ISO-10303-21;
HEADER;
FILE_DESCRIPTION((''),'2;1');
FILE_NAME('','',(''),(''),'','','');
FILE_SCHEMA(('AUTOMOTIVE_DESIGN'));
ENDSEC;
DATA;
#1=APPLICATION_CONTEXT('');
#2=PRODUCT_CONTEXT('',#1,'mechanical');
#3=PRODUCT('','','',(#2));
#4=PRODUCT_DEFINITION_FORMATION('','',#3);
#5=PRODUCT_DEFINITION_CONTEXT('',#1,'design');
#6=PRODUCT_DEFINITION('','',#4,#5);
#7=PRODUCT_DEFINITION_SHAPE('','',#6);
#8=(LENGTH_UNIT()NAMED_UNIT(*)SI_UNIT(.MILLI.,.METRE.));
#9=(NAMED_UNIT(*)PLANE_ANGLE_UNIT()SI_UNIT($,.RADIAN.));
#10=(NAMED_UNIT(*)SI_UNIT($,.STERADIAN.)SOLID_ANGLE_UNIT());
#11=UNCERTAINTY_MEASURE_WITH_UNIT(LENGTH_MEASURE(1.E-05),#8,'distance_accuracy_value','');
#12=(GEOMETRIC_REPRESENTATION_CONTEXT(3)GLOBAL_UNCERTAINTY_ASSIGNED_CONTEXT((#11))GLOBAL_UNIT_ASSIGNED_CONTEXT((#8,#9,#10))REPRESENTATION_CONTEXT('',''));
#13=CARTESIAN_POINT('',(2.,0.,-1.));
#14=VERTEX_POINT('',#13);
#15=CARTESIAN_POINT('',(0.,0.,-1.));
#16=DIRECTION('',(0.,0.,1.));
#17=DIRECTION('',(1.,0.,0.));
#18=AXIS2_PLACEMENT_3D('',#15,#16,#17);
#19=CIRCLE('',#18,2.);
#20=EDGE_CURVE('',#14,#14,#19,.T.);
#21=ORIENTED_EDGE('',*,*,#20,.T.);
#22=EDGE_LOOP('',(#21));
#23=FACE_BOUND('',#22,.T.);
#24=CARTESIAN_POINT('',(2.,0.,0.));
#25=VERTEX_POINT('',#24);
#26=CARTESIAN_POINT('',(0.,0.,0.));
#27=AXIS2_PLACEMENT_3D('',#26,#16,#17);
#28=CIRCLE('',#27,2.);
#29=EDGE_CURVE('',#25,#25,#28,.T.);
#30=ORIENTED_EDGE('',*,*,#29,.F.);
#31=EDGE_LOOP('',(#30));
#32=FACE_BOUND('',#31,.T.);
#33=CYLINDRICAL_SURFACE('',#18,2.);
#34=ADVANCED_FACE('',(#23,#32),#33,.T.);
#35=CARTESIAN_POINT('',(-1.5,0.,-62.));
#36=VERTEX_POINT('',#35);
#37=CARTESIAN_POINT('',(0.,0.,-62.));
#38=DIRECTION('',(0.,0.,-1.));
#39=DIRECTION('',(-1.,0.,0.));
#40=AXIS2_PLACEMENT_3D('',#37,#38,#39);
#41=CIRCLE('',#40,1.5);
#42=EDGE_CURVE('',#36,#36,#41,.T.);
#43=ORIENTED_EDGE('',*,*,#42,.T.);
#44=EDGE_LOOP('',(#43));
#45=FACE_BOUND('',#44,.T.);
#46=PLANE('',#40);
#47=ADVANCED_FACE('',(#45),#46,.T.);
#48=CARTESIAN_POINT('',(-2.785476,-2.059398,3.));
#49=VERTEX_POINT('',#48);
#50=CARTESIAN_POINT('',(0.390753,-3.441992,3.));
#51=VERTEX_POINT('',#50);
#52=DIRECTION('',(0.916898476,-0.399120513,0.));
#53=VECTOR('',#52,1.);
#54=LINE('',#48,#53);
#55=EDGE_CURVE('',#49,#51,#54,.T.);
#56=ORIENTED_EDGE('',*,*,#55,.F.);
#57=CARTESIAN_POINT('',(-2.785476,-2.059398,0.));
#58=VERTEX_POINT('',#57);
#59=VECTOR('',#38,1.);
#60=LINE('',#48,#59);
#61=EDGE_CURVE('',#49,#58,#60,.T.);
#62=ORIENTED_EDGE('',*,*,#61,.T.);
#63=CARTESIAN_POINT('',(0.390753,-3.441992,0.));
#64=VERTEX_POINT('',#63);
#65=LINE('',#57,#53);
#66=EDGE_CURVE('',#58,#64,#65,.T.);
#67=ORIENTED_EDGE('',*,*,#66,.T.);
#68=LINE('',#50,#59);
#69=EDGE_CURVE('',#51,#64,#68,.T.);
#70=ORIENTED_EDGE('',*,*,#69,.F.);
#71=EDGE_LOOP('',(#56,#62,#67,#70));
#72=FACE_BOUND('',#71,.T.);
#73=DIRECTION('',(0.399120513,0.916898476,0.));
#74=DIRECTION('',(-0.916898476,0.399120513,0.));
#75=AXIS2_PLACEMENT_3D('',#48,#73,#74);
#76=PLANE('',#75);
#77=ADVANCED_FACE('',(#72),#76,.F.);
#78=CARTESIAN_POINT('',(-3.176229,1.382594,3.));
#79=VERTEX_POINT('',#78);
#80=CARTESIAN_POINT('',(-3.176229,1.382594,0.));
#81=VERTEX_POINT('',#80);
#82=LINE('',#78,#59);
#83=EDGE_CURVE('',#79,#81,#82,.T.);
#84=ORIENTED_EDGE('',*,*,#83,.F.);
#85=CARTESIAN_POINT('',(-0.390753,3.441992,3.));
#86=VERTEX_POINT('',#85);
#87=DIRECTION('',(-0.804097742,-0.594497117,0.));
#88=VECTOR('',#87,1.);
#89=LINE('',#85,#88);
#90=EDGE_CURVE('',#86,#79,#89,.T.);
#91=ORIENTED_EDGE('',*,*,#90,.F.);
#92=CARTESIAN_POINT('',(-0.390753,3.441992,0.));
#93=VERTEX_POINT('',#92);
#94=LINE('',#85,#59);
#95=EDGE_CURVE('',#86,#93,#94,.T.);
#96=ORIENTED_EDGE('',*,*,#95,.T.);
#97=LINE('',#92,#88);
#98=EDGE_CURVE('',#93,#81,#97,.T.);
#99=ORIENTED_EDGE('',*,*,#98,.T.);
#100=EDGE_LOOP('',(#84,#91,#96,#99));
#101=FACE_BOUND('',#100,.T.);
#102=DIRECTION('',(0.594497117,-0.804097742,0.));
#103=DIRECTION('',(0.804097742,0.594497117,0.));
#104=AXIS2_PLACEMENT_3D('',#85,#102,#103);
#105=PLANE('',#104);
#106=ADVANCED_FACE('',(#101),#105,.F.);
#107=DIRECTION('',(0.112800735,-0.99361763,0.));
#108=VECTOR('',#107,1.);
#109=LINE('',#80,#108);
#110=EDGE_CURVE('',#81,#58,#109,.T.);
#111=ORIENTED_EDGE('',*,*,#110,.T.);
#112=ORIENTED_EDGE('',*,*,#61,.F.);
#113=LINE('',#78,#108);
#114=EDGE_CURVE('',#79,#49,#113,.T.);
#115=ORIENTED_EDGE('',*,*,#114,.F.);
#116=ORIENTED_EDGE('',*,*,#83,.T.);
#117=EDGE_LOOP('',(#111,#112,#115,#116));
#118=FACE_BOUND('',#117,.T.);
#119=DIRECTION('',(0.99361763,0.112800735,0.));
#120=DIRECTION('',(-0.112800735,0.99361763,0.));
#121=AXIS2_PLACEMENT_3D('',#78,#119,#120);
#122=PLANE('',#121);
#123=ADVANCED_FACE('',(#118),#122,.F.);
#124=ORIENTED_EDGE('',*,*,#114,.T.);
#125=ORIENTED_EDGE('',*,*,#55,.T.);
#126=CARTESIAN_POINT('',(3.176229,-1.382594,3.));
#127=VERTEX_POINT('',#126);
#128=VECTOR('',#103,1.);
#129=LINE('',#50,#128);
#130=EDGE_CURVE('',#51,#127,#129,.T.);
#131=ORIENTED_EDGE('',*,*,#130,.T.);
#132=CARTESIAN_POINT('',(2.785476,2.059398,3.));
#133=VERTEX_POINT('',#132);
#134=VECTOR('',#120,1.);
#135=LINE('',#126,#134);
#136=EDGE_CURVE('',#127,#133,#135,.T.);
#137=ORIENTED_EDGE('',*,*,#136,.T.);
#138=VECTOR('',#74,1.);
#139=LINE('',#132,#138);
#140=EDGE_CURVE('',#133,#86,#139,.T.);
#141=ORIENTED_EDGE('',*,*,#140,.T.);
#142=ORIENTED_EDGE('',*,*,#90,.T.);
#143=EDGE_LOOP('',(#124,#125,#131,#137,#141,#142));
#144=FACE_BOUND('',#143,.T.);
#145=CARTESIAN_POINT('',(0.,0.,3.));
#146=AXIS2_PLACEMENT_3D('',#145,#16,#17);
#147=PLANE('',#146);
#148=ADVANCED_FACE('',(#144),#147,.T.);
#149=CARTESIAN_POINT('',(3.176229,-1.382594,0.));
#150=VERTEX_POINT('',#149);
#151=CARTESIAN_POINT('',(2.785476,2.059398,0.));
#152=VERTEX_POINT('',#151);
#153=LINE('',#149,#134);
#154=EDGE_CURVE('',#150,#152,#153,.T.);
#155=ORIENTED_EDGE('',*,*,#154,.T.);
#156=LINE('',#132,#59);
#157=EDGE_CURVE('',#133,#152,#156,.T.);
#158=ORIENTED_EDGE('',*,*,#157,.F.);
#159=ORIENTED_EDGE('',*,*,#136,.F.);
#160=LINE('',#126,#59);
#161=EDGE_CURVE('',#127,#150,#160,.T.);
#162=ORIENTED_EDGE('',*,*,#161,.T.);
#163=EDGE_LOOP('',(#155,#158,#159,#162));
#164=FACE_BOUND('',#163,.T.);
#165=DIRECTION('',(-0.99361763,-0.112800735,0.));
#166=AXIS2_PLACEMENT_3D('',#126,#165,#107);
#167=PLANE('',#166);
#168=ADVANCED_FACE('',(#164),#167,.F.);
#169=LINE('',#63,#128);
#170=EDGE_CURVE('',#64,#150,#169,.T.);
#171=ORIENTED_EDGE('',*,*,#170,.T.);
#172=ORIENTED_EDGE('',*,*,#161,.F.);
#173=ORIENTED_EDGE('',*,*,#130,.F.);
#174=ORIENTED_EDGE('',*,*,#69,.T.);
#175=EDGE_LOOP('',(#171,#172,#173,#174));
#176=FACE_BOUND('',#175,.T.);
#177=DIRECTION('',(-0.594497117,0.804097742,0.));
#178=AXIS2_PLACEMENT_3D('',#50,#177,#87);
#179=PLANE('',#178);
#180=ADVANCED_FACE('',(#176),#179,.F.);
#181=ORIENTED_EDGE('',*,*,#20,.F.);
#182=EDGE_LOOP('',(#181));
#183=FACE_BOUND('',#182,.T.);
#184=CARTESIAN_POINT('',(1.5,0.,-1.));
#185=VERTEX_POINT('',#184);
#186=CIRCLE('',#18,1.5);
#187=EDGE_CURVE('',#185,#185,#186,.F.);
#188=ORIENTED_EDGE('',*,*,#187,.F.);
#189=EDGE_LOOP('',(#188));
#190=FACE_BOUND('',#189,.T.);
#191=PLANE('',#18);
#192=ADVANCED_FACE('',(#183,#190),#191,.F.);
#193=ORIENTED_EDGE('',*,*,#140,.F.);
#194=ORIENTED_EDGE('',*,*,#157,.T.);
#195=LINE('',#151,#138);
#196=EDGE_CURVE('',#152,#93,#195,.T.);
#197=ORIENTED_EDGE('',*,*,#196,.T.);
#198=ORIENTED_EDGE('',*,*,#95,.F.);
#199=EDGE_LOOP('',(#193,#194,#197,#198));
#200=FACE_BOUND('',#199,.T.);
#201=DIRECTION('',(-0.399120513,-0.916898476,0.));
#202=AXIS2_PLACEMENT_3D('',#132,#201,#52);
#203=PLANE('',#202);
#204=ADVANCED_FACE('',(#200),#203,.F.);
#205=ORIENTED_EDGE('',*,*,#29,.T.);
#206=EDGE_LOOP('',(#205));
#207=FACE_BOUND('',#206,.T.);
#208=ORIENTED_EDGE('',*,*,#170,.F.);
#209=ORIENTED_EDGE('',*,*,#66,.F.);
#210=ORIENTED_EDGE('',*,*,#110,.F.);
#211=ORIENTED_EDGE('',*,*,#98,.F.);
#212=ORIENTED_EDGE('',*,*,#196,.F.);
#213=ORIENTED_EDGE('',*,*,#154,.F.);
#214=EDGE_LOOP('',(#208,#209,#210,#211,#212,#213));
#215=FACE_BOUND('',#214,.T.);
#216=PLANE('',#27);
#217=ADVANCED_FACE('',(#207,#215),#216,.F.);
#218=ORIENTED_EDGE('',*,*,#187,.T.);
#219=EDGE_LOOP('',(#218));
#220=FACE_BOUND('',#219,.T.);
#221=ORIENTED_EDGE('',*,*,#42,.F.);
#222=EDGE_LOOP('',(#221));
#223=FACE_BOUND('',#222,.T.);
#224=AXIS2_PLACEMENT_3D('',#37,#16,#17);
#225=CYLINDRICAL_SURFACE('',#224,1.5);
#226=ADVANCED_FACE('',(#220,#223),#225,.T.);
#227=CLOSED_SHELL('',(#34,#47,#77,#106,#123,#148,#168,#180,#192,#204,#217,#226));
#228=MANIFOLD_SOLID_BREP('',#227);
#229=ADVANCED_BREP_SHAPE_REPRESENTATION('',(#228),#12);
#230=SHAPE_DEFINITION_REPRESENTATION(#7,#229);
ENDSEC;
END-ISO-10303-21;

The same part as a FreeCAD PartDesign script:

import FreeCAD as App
import Part
import Sketcher


def add_polygon(sketch, points):
    """Adds a closed chain of lines whose ends are joined by coincident constraints."""
    first, n = sketch.GeometryCount, len(points)
    for a, b in zip(points, points[1:] + points[:1]):
        sketch.addGeometry(Part.LineSegment(App.Vector(*a, 0), App.Vector(*b, 0)), False)
    for i in range(n):
        sketch.addConstraint(Sketcher.Constraint("Coincident", first + i, 2, first + (i + 1) % n, 1))

doc = App.newDocument("Part")
body = doc.addObject("PartDesign::Body", "Body")

# Sketch on XY plane
sketch1 = body.newObject("Sketcher::SketchObject", "Sketch")
sketch1.AttachmentSupport = (doc.getObject("XY_Plane"), [""])
sketch1.MapMode = "FlatFace"
add_polygon(sketch1, [(-3.2, 1.4), (-2.8, -2.1), (0.4, -3.4), (3.2, -1.4), (2.8, 2.1), (-0.4, 3.4)])  # lines 0-5
sketch1.addConstraint(Sketcher.Constraint("Symmetric", 0, 2, 3, 2, -1, 1))
sketch1.addConstraint(Sketcher.Constraint("Symmetric", 1, 2, 4, 2, -1, 1))
sketch1.addConstraint(Sketcher.Constraint("Symmetric", 2, 2, 5, 2, -1, 1))
sketch1.addConstraint(Sketcher.Constraint("Equal", 0, 1))
sketch1.addConstraint(Sketcher.Constraint("Equal", 1, 2))
sketch1.addConstraint(Sketcher.Constraint("Distance", 0, 3.464102))
sketch1.addConstraint(Sketcher.Constraint("DistanceY", 0, 2, -1, 1, 2.059398))
sketch1.addConstraint(Sketcher.Constraint("DistanceY", 1, 2, 2, 2, 2.059398))
sketch1.addConstraint(Sketcher.Constraint("DistanceX", -1, 1, 2, 2, 3.176229))
pad1 = body.newObject("PartDesign::Pad", "Pad")
pad1.Profile = sketch1
pad1.Length = 3

# Sketch on XY plane
sketch2 = body.newObject("Sketcher::SketchObject", "Sketch001")
sketch2.AttachmentSupport = (doc.getObject("XY_Plane"), [""])
sketch2.MapMode = "FlatFace"
sketch2.addGeometry(Part.Circle(App.Vector(0, 0, 0), App.Vector(0, 0, 1), 2), False)
sketch2.addConstraint(Sketcher.Constraint("Coincident", 0, 3, -1, 1))
sketch2.addConstraint(Sketcher.Constraint("Diameter", 0, 4.0))
pad2 = body.newObject("PartDesign::Pad", "Pad001")
pad2.Profile = sketch2
pad2.Length = 1
pad2.Reversed = True

# Sketch on XY plane
sketch3 = body.newObject("Sketcher::SketchObject", "Sketch002")
sketch3.AttachmentSupport = (doc.getObject("XY_Plane"), [""])
sketch3.MapMode = "FlatFace"
sketch3.AttachmentOffset = App.Placement(App.Vector(0, 0, -1), App.Rotation())
sketch3.addGeometry(Part.Circle(App.Vector(0, 0, 0), App.Vector(0, 0, 1), 1.5), False)
sketch3.addConstraint(Sketcher.Constraint("Coincident", 0, 3, -1, 1))
sketch3.addConstraint(Sketcher.Constraint("Diameter", 0, 3.0))
pad3 = body.newObject("PartDesign::Pad", "Pad002")
pad3.Profile = sketch3
pad3.Length = 61
pad3.Reversed = True

doc.recompute()
